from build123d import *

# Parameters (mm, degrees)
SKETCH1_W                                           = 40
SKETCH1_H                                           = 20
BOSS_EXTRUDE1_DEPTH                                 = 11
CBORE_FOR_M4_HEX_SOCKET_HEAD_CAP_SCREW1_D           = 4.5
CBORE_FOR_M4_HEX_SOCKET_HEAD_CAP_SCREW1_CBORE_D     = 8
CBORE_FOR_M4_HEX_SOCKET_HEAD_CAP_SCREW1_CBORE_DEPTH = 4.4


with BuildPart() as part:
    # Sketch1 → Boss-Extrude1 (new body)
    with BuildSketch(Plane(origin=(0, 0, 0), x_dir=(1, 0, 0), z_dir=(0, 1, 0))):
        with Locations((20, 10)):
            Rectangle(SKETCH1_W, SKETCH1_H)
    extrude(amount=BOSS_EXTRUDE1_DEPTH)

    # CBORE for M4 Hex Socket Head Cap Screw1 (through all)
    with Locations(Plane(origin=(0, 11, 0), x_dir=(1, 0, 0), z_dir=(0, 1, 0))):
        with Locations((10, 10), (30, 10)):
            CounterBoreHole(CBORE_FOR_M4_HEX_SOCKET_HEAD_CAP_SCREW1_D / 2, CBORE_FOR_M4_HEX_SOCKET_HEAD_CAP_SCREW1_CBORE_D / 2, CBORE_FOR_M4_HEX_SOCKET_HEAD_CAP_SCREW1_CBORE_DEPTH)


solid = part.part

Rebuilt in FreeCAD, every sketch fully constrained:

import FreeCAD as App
import Part
import Sketcher

V = App.Vector


def add_polygon(sketch, points):
    """Adds a closed chain of lines whose ends are joined by coincident constraints."""
    first, n = sketch.GeometryCount, len(points)
    for a, b in zip(points, points[1:] + points[:1]):
        sketch.addGeometry(Part.LineSegment(App.Vector(*a, 0), App.Vector(*b, 0)), False)
    for i in range(n):
        sketch.addConstraint(Sketcher.Constraint("Coincident", first + i, 2, first + (i + 1) % n, 1))

doc = App.newDocument("Part")
body = doc.addObject("PartDesign::Body", "Body")

sketch1 = body.newObject("Sketcher::SketchObject", "Sketch")
sketch1.AttachmentSupport = (doc.getObject("XZ_Plane"), [""])
sketch1.MapMode = "FlatFace"
add_polygon(sketch1, [(0, -20), (0, 0), (40, 0), (40, -20)])
sketch1.addConstraint(Sketcher.Constraint("Vertical", 0))
sketch1.addConstraint(Sketcher.Constraint("Horizontal", 1))
sketch1.addConstraint(Sketcher.Constraint("Vertical", 2))
sketch1.addConstraint(Sketcher.Constraint("Horizontal", 3))
sketch1.addConstraint(Sketcher.Constraint("Coincident", 0, 2, -1, 1))
sketch1.addConstraint(Sketcher.Constraint("DistanceX", 1, 1, 1, 2, 40.0))
sketch1.addConstraint(Sketcher.Constraint("DistanceY", 0, 1, 0, 2, 20.0))
pad1 = body.newObject("PartDesign::Pad", "Pad")
pad1.Profile = sketch1
pad1.Length = 11
pad1.Reversed = True

sketch2 = body.newObject("Sketcher::SketchObject", "Sketch001")
sketch2.AttachmentSupport = (doc.getObject("XZ_Plane"), [""])
sketch2.MapMode = "FlatFace"
sketch2.AttachmentOffset = App.Placement(V(0, 0, -11), App.Rotation())
sketch2.addGeometry(Part.Circle(V(10, -10, 0), V(0, 0, 1), 2.2), False)
sketch2.addGeometry(Part.Circle(V(30, -10, 0), V(0, 0, 1), 2.2), False)
sketch2.addConstraint(Sketcher.Constraint("Equal", 0, 1))
sketch2.addConstraint(Sketcher.Constraint("Horizontal", 0, 3, 1, 3))
sketch2.addConstraint(Sketcher.Constraint("Diameter", 0, 4.5))
sketch2.addConstraint(Sketcher.Constraint("DistanceX", -1, 1, 0, 3, 10.0))
sketch2.addConstraint(Sketcher.Constraint("DistanceY", 0, 3, -1, 1, 10.0))
sketch2.addConstraint(Sketcher.Constraint("DistanceX", -1, 1, 1, 3, 30.0))
doc.recompute()
hole = body.newObject("PartDesign::Hole", "Hole")
hole.Profile = sketch2
hole.ThreadType = "None"
hole.Diameter = 4.5
hole.DepthType = "ThroughAll"
hole.HoleCutType = "Counterbore"
hole.HoleCutDiameter = 8
hole.HoleCutDepth = 4.4
hole.Reversed = True

doc.recompute()
